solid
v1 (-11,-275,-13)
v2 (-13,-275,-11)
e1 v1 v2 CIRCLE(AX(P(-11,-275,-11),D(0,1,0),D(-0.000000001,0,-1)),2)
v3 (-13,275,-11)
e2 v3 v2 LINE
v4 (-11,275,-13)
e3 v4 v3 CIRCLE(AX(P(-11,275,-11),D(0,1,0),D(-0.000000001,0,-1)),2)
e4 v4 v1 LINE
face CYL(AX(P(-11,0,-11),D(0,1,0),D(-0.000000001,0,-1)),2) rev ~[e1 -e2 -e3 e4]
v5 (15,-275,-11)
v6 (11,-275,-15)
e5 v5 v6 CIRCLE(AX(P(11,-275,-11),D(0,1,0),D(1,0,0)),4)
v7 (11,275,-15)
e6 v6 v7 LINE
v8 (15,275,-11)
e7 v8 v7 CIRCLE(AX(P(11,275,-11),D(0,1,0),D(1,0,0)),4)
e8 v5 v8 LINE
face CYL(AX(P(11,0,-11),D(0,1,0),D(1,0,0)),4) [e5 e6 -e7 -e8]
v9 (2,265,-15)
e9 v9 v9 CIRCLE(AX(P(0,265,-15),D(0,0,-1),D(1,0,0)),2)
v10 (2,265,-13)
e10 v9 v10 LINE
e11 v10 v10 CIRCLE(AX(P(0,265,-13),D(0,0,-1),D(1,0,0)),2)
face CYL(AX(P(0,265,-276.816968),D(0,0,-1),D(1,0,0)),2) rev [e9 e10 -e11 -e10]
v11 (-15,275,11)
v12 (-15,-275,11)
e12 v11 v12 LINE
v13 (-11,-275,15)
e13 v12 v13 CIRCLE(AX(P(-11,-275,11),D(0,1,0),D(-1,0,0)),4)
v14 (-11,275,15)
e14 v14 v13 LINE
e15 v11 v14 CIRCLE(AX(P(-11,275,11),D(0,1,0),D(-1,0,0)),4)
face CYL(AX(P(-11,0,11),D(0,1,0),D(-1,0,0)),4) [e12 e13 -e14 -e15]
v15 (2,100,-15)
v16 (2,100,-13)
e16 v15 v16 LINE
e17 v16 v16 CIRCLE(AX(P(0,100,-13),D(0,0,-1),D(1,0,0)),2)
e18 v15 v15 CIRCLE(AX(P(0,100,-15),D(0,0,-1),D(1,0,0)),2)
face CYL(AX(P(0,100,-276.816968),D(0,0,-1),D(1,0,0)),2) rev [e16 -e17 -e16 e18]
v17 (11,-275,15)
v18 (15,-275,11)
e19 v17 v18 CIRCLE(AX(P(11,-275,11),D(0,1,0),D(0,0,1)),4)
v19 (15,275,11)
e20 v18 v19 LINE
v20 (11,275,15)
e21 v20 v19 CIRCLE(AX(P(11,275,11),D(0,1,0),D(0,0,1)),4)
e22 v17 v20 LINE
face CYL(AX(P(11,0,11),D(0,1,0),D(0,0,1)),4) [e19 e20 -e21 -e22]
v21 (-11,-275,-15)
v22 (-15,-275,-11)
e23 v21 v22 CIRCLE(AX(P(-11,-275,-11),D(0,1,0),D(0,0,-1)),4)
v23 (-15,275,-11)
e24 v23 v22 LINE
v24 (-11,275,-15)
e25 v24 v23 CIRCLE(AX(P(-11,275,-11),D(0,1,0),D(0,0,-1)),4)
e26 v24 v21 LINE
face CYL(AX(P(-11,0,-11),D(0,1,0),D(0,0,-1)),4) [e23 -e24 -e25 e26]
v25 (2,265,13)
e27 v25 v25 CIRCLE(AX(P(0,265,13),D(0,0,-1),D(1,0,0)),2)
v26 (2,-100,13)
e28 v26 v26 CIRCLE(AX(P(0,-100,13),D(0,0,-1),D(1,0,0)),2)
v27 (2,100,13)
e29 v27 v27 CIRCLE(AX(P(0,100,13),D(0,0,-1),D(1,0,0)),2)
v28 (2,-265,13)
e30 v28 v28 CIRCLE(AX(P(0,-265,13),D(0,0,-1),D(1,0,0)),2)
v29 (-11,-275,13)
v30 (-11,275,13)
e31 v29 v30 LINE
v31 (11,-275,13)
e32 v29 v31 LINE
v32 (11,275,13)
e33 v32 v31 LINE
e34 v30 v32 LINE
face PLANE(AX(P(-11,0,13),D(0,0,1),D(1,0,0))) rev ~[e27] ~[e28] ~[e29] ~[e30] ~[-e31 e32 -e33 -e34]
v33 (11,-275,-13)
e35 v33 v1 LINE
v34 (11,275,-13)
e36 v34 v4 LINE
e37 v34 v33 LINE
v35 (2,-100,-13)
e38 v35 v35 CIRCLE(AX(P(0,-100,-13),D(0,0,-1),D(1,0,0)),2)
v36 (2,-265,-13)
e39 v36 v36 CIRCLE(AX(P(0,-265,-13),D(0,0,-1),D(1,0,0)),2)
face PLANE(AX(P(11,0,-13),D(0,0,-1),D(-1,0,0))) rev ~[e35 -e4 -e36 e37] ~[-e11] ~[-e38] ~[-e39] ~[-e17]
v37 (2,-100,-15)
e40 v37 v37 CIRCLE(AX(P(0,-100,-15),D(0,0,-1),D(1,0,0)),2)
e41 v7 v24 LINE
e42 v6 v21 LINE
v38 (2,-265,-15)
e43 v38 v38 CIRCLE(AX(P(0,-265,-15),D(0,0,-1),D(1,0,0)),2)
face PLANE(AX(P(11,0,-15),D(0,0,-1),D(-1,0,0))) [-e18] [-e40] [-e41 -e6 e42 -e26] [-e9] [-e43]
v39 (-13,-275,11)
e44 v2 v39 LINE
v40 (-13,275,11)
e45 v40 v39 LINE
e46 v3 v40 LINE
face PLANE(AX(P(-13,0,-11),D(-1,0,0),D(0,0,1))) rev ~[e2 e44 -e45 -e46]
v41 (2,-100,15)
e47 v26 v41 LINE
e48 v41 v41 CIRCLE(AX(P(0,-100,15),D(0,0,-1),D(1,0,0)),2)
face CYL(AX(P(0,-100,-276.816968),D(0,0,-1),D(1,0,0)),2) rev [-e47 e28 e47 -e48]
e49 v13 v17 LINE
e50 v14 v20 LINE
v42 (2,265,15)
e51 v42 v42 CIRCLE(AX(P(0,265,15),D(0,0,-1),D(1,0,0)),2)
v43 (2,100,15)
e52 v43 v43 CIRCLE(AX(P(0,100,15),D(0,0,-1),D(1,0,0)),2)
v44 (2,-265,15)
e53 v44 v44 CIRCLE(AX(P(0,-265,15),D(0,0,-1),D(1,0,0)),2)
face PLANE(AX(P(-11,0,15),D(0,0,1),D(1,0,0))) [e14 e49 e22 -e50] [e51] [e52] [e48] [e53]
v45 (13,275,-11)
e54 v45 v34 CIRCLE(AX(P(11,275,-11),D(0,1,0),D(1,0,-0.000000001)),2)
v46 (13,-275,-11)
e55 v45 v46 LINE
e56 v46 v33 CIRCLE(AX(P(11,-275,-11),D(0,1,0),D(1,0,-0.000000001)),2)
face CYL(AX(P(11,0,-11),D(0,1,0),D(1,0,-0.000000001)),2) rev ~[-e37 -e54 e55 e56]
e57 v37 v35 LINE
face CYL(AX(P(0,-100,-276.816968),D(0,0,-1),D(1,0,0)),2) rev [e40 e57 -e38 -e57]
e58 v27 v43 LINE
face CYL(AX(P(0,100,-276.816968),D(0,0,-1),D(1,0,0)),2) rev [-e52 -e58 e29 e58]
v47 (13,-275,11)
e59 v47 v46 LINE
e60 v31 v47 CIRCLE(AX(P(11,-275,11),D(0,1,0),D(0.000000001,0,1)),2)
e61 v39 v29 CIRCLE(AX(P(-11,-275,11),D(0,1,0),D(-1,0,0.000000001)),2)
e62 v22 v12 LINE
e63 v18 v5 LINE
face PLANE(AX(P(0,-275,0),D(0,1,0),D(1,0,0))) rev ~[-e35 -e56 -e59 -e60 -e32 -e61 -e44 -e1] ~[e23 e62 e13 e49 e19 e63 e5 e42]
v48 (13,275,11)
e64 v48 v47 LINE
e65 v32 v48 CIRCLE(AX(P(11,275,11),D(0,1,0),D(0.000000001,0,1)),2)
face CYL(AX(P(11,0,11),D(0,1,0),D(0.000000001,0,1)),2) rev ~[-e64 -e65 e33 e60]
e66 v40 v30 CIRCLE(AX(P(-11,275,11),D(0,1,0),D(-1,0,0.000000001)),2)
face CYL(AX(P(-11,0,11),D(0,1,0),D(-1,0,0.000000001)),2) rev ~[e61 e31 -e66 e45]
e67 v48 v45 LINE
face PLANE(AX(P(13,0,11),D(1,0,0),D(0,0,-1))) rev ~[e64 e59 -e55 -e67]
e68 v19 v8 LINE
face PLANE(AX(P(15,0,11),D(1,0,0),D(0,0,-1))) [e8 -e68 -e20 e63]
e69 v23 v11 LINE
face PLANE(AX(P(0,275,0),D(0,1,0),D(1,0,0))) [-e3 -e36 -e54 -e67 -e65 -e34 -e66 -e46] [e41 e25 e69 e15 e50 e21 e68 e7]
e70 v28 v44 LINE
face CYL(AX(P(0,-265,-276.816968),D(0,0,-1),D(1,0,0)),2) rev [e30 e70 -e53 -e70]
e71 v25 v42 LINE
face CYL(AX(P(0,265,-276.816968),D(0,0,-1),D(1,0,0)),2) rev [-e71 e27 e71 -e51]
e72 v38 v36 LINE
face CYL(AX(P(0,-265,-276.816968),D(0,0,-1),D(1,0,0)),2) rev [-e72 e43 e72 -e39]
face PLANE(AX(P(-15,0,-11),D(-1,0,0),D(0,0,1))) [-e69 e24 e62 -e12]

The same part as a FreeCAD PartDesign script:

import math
import FreeCAD as App
import Part
import Sketcher
from FreeCAD import Vector
Q = App.Units.Quantity

doc = App.newDocument("Part")
body = doc.addObject("PartDesign::Body", "Body")

# Sketch on XZ plane
sketch1 = doc.addObject("Sketcher::SketchObject", "Sketch")
body.addObject(sketch1)
sketch1.AttachmentSupport = (doc.XZ_Plane, [""])
sketch1.MapMode = "FlatFace"
sketch1.addGeometry([
    Part.LineSegment(Vector(-11, 15, 0), Vector(11, 15, 0)),  # 0
    Part.ArcOfCircle(Part.Circle(Vector(11, 11, 0), Vector(0, 0, 1), 4), math.radians(0), math.radians(90)),  # 1
    Part.LineSegment(Vector(15, 11, 0), Vector(15, -11, 0)),  # 2
    Part.ArcOfCircle(Part.Circle(Vector(11, -11, 0), Vector(0, 0, 1), 4), math.radians(-90), math.radians(0)),  # 3
    Part.LineSegment(Vector(11, -15, 0), Vector(-11, -15, 0)),  # 4
    Part.ArcOfCircle(Part.Circle(Vector(-11, -11, 0), Vector(0, 0, 1), 4), math.radians(180), math.radians(270)),  # 5
    Part.LineSegment(Vector(-15, -11, 0), Vector(-15, 11, 0)),  # 6
    Part.ArcOfCircle(Part.Circle(Vector(-11, 11, 0), Vector(0, 0, 1), 4), math.radians(90), math.radians(180)),  # 7
    Part.LineSegment(Vector(11, 13, 0), Vector(-11, 13, 0)),  # 8
    Part.ArcOfCircle(Part.Circle(Vector(-11, 11, 0), Vector(0, 0, 1), 2), math.radians(90), math.radians(180)),  # 9
    Part.LineSegment(Vector(-13, 11, 0), Vector(-13, -11, 0)),  # 10
    Part.ArcOfCircle(Part.Circle(Vector(-11, -11, 0), Vector(0, 0, 1), 2), math.radians(-180), math.radians(-90)),  # 11
    Part.LineSegment(Vector(-11, -13, 0), Vector(11, -13, 0)),  # 12
    Part.ArcOfCircle(Part.Circle(Vector(11, -11, 0), Vector(0, 0, 1), 2), math.radians(-90), math.radians(0)),  # 13
    Part.LineSegment(Vector(13, -11, 0), Vector(13, 11, 0)),  # 14
    Part.ArcOfCircle(Part.Circle(Vector(11, 11, 0), Vector(0, 0, 1), 2), math.radians(0), math.radians(90)),  # 15
], False)
sketch1.addConstraint([
    Sketcher.Constraint("Tangent", 0, 2, 1, 2),
    Sketcher.Constraint("Tangent", 1, 1, 2, 1),
    Sketcher.Constraint("Tangent", 2, 2, 3, 2),
    Sketcher.Constraint("Tangent", 3, 1, 4, 1),
    Sketcher.Constraint("Tangent", 4, 2, 5, 2),
    Sketcher.Constraint("Tangent", 5, 1, 6, 1),
    Sketcher.Constraint("Tangent", 6, 2, 7, 2),
    Sketcher.Constraint("Tangent", 7, 1, 0, 1),
    Sketcher.Constraint("Tangent", 8, 2, 9, 1),
    Sketcher.Constraint("Tangent", 9, 2, 10, 1),
    Sketcher.Constraint("Tangent", 10, 2, 11, 1),
    Sketcher.Constraint("Tangent", 11, 2, 12, 1),
    Sketcher.Constraint("Tangent", 12, 2, 13, 1),
    Sketcher.Constraint("Tangent", 13, 2, 14, 1),
    Sketcher.Constraint("Tangent", 14, 2, 15, 1),
    Sketcher.Constraint("Tangent", 15, 2, 8, 1),
    Sketcher.Constraint("Horizontal", 0),
    Sketcher.Constraint("Vertical", 2),
    Sketcher.Constraint("Horizontal", 4),
    Sketcher.Constraint("Vertical", 6),
    Sketcher.Constraint("Horizontal", 8),
    Sketcher.Constraint("Vertical", 10),
    Sketcher.Constraint("Horizontal", 12),
    Sketcher.Constraint("Vertical", 14),
    Sketcher.Constraint("Coincident", 9, 3, 7, 3),
    Sketcher.Constraint("Coincident", 11, 3, 5, 3),
    Sketcher.Constraint("Coincident", 13, 3, 3, 3),
    Sketcher.Constraint("Equal", 1, 3),
    Sketcher.Constraint("Equal", 3, 5),
    Sketcher.Constraint("Equal", 5, 7),
    Sketcher.Constraint("Equal", 13, 15),
    Sketcher.Constraint("Symmetric", 1, 3, 5, 3, -1, 1),
    Sketcher.Constraint("Equal", 12, 2),
    Sketcher.Constraint("Radius", 1, Q("4 mm")),
    Sketcher.Constraint("Radius", 9, Q("2 mm")),
    Sketcher.Constraint("DistanceX", 0, 1, 0, 2, Q("22 mm")),
])
pad1 = doc.addObject("PartDesign::Pad", "Pad")
body.addObject(pad1)
pad1.Profile = sketch1
pad1.Length = 550
pad1.Midplane = True

# Sketch on XY plane
sketch2 = doc.addObject("Sketcher::SketchObject", "Sketch001")
body.addObject(sketch2)
sketch2.AttachmentSupport = (doc.XY_Plane, [""])
sketch2.MapMode = "FlatFace"
sketch2.addGeometry([
    Part.Circle(Vector(0, 265, 0), Vector(0, 0, 1), 2),
    Part.Circle(Vector(0, 100, 0), Vector(0, 0, 1), 2),
    Part.Circle(Vector(0, -100, 0), Vector(0, 0, 1), 2),
    Part.Circle(Vector(0, -265, 0), Vector(0, 0, 1), 2),
], False)
sketch2.addConstraint([
    Sketcher.Constraint("Equal", 0, 1),
    Sketcher.Constraint("Equal", 1, 2),
    Sketcher.Constraint("Equal", 2, 3),
    Sketcher.Constraint("Symmetric", 1, 3, 2, 3, -1, 1),
    Sketcher.Constraint("Symmetric", 0, 3, 3, 3, -1, 1),
    Sketcher.Constraint("PointOnObject", 0, 3, -2),
    Sketcher.Constraint("PointOnObject", 1, 3, -2),
    Sketcher.Constraint("Diameter", 0, Q("4 mm")),
    Sketcher.Constraint("DistanceY", -1, 1, 0, 3, Q("265 mm")),
    Sketcher.Constraint("DistanceY", -1, 1, 1, 3, Q("100 mm")),
])
pocket1 = doc.addObject("PartDesign::Pocket", "Pocket")
body.addObject(pocket1)
pocket1.Profile = sketch2
pocket1.Type = "ThroughAll"
pocket1.Midplane = True

doc.recompute()
